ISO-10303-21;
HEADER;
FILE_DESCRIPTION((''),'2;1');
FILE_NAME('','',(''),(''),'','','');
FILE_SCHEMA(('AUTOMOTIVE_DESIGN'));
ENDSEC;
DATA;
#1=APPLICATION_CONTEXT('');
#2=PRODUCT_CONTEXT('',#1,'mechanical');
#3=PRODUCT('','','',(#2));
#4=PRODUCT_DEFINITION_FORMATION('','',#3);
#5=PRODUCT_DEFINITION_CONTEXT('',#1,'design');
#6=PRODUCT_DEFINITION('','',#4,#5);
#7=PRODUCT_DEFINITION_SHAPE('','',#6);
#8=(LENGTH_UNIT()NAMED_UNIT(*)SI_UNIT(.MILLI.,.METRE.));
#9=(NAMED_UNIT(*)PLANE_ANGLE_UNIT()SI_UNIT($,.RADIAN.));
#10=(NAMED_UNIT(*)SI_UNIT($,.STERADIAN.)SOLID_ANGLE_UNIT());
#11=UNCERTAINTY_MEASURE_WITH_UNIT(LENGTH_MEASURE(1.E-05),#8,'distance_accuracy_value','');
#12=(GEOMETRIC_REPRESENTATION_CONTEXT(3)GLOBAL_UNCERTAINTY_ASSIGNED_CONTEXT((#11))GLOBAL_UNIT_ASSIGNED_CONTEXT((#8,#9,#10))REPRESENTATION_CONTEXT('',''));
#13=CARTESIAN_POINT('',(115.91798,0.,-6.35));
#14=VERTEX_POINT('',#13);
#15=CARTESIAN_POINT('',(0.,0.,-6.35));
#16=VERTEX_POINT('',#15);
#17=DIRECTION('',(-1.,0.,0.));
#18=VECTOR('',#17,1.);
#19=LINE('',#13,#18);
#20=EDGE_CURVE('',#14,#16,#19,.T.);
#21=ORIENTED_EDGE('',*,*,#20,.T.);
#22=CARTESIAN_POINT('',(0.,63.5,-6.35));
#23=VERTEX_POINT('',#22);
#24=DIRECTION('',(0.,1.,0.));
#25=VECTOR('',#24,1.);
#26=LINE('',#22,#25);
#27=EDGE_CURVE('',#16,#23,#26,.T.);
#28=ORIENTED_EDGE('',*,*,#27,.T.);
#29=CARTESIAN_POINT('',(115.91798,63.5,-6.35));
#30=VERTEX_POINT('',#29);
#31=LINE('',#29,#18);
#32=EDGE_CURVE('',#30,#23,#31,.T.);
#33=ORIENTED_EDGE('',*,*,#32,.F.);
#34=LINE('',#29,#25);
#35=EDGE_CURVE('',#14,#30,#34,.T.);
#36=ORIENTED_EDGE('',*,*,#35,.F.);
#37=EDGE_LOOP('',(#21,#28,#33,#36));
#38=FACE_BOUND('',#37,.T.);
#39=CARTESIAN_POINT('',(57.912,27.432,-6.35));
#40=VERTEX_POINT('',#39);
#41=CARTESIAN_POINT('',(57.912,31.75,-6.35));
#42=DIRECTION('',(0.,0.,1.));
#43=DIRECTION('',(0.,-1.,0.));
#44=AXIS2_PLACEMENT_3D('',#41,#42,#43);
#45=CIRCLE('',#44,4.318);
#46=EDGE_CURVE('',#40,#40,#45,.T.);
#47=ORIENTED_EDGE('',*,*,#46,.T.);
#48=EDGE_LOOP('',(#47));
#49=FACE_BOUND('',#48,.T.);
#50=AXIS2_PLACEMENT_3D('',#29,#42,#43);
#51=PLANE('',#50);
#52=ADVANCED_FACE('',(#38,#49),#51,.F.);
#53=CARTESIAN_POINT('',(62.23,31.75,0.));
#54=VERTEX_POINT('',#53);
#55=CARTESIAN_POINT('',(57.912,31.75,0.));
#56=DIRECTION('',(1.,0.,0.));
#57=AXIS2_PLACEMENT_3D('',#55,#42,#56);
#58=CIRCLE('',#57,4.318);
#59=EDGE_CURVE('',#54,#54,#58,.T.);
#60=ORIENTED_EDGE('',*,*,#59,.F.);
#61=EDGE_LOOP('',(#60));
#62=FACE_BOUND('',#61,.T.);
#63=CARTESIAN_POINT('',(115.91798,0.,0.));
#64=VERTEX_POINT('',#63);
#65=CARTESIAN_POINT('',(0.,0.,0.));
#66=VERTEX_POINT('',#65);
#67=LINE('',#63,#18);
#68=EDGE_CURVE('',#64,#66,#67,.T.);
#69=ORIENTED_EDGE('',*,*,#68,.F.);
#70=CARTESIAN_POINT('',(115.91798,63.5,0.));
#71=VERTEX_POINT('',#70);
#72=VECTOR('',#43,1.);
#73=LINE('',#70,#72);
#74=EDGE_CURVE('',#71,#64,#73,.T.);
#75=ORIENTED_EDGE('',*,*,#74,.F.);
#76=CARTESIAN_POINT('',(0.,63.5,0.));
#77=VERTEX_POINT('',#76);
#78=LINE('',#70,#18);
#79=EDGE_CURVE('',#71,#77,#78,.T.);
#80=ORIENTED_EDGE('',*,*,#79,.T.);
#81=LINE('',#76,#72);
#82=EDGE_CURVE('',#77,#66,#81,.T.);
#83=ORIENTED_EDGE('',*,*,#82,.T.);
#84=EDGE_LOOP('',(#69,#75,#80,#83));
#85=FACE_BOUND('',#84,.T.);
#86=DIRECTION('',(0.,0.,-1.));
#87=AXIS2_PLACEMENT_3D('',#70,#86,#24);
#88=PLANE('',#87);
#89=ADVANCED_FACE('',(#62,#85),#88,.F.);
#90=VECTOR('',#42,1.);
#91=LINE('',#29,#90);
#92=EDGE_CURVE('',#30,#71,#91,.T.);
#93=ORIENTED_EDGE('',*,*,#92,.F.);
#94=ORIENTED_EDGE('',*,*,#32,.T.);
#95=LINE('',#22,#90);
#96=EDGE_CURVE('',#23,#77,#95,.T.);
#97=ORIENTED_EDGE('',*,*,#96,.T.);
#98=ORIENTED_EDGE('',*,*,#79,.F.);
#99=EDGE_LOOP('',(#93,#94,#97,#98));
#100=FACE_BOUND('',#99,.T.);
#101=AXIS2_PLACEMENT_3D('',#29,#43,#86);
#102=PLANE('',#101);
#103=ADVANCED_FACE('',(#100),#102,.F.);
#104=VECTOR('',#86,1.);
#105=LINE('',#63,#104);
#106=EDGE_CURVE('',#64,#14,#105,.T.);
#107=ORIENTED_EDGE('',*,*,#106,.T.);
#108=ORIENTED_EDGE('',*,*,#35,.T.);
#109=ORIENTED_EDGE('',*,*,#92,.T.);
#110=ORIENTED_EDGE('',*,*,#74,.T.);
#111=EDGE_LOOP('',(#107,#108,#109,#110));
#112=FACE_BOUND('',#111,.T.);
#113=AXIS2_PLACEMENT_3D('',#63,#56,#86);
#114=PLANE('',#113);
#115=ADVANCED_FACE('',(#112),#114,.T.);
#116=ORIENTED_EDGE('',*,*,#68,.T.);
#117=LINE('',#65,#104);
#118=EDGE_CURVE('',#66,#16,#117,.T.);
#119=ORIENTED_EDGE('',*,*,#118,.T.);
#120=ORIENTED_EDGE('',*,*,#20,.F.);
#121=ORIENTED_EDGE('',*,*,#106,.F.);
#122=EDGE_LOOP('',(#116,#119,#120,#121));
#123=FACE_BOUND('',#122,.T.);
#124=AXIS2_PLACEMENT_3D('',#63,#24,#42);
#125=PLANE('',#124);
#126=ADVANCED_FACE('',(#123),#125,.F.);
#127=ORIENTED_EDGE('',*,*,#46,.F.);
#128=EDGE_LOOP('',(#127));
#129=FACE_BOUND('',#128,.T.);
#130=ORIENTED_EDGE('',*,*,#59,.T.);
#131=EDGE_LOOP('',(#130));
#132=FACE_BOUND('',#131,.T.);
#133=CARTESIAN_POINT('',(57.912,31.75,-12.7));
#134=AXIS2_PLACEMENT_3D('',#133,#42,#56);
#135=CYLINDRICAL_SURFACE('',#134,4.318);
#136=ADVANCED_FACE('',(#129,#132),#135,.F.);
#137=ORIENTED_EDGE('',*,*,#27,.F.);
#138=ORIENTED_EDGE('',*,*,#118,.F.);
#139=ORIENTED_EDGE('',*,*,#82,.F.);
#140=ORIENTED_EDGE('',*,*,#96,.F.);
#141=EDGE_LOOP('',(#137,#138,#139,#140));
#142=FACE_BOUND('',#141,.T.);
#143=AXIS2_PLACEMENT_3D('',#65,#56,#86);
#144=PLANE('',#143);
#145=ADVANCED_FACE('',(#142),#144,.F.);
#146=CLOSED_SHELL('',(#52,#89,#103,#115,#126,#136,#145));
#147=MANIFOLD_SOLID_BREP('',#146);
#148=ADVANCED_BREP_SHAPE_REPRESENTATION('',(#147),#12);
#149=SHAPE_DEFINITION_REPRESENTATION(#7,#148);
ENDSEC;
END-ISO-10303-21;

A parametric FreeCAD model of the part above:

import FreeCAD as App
import Part
import Sketcher

V = App.Vector
Q = App.Units.Quantity

doc = App.newDocument("Part")
body = doc.addObject("PartDesign::Body", "Body")

sketch1 = body.newObject("Sketcher::SketchObject", "Sketch")
sketch1.AttachmentSupport = (doc.getObject("YZ_Plane"), [""])
sketch1.MapMode = "FlatFace"
sketch1.addGeometry(Part.LineSegment(V(64, 0, 0), V(0, 0, 0)), False)
sketch1.addGeometry(Part.LineSegment(V(0, 0, 0), V(0, -6, 0)), False)
sketch1.addGeometry(Part.LineSegment(V(0, -6, 0), V(64, -6, 0)), False)
sketch1.addGeometry(Part.LineSegment(V(64, -6, 0), V(64, 0, 0)), False)
sketch1.addConstraint(Sketcher.Constraint("Coincident", 0, 2, 1, 1))
sketch1.addConstraint(Sketcher.Constraint("Coincident", 1, 2, 2, 1))
sketch1.addConstraint(Sketcher.Constraint("Coincident", 2, 2, 3, 1))
sketch1.addConstraint(Sketcher.Constraint("Coincident", 3, 2, 0, 1))
sketch1.addConstraint(Sketcher.Constraint("Horizontal", 0))
sketch1.addConstraint(Sketcher.Constraint("Vertical", 1))
sketch1.addConstraint(Sketcher.Constraint("Horizontal", 2))
sketch1.addConstraint(Sketcher.Constraint("Vertical", 3))
sketch1.addConstraint(Sketcher.Constraint("Coincident", 0, 2, -1, 1))
sketch1.addConstraint(Sketcher.Constraint("DistanceX", 0, 2, 0, 1, Q("2.5 in")))
sketch1.addConstraint(Sketcher.Constraint("DistanceY", 1, 2, 1, 1, Q("0.25 in")))
pad1 = body.newObject("PartDesign::Pad", "Pad")
pad1.Profile = sketch1
pad1.Length = Q("4.5637 in")

sketch2 = body.newObject("Sketcher::SketchObject", "Sketch001")
sketch2.AttachmentSupport = (doc.getObject("XY_Plane"), [""])
sketch2.MapMode = "FlatFace"
sketch2.addGeometry(Part.Circle(V(57.9, 31.8, 0), V(0, 0, 1), 4.3), False)
sketch2.addConstraint(Sketcher.Constraint("Diameter", 0, Q("0.34 in")))
sketch2.addConstraint(Sketcher.Constraint("DistanceX", -1, 1, 0, 3, Q("2.28 in")))
sketch2.addConstraint(Sketcher.Constraint("DistanceY", -1, 1, 0, 3, Q("1.25 in")))
pocket1 = body.newObject("PartDesign::Pocket", "Pocket")
pocket1.Profile = sketch2
pocket1.Length = Q("0.5 in")

doc.recompute()
